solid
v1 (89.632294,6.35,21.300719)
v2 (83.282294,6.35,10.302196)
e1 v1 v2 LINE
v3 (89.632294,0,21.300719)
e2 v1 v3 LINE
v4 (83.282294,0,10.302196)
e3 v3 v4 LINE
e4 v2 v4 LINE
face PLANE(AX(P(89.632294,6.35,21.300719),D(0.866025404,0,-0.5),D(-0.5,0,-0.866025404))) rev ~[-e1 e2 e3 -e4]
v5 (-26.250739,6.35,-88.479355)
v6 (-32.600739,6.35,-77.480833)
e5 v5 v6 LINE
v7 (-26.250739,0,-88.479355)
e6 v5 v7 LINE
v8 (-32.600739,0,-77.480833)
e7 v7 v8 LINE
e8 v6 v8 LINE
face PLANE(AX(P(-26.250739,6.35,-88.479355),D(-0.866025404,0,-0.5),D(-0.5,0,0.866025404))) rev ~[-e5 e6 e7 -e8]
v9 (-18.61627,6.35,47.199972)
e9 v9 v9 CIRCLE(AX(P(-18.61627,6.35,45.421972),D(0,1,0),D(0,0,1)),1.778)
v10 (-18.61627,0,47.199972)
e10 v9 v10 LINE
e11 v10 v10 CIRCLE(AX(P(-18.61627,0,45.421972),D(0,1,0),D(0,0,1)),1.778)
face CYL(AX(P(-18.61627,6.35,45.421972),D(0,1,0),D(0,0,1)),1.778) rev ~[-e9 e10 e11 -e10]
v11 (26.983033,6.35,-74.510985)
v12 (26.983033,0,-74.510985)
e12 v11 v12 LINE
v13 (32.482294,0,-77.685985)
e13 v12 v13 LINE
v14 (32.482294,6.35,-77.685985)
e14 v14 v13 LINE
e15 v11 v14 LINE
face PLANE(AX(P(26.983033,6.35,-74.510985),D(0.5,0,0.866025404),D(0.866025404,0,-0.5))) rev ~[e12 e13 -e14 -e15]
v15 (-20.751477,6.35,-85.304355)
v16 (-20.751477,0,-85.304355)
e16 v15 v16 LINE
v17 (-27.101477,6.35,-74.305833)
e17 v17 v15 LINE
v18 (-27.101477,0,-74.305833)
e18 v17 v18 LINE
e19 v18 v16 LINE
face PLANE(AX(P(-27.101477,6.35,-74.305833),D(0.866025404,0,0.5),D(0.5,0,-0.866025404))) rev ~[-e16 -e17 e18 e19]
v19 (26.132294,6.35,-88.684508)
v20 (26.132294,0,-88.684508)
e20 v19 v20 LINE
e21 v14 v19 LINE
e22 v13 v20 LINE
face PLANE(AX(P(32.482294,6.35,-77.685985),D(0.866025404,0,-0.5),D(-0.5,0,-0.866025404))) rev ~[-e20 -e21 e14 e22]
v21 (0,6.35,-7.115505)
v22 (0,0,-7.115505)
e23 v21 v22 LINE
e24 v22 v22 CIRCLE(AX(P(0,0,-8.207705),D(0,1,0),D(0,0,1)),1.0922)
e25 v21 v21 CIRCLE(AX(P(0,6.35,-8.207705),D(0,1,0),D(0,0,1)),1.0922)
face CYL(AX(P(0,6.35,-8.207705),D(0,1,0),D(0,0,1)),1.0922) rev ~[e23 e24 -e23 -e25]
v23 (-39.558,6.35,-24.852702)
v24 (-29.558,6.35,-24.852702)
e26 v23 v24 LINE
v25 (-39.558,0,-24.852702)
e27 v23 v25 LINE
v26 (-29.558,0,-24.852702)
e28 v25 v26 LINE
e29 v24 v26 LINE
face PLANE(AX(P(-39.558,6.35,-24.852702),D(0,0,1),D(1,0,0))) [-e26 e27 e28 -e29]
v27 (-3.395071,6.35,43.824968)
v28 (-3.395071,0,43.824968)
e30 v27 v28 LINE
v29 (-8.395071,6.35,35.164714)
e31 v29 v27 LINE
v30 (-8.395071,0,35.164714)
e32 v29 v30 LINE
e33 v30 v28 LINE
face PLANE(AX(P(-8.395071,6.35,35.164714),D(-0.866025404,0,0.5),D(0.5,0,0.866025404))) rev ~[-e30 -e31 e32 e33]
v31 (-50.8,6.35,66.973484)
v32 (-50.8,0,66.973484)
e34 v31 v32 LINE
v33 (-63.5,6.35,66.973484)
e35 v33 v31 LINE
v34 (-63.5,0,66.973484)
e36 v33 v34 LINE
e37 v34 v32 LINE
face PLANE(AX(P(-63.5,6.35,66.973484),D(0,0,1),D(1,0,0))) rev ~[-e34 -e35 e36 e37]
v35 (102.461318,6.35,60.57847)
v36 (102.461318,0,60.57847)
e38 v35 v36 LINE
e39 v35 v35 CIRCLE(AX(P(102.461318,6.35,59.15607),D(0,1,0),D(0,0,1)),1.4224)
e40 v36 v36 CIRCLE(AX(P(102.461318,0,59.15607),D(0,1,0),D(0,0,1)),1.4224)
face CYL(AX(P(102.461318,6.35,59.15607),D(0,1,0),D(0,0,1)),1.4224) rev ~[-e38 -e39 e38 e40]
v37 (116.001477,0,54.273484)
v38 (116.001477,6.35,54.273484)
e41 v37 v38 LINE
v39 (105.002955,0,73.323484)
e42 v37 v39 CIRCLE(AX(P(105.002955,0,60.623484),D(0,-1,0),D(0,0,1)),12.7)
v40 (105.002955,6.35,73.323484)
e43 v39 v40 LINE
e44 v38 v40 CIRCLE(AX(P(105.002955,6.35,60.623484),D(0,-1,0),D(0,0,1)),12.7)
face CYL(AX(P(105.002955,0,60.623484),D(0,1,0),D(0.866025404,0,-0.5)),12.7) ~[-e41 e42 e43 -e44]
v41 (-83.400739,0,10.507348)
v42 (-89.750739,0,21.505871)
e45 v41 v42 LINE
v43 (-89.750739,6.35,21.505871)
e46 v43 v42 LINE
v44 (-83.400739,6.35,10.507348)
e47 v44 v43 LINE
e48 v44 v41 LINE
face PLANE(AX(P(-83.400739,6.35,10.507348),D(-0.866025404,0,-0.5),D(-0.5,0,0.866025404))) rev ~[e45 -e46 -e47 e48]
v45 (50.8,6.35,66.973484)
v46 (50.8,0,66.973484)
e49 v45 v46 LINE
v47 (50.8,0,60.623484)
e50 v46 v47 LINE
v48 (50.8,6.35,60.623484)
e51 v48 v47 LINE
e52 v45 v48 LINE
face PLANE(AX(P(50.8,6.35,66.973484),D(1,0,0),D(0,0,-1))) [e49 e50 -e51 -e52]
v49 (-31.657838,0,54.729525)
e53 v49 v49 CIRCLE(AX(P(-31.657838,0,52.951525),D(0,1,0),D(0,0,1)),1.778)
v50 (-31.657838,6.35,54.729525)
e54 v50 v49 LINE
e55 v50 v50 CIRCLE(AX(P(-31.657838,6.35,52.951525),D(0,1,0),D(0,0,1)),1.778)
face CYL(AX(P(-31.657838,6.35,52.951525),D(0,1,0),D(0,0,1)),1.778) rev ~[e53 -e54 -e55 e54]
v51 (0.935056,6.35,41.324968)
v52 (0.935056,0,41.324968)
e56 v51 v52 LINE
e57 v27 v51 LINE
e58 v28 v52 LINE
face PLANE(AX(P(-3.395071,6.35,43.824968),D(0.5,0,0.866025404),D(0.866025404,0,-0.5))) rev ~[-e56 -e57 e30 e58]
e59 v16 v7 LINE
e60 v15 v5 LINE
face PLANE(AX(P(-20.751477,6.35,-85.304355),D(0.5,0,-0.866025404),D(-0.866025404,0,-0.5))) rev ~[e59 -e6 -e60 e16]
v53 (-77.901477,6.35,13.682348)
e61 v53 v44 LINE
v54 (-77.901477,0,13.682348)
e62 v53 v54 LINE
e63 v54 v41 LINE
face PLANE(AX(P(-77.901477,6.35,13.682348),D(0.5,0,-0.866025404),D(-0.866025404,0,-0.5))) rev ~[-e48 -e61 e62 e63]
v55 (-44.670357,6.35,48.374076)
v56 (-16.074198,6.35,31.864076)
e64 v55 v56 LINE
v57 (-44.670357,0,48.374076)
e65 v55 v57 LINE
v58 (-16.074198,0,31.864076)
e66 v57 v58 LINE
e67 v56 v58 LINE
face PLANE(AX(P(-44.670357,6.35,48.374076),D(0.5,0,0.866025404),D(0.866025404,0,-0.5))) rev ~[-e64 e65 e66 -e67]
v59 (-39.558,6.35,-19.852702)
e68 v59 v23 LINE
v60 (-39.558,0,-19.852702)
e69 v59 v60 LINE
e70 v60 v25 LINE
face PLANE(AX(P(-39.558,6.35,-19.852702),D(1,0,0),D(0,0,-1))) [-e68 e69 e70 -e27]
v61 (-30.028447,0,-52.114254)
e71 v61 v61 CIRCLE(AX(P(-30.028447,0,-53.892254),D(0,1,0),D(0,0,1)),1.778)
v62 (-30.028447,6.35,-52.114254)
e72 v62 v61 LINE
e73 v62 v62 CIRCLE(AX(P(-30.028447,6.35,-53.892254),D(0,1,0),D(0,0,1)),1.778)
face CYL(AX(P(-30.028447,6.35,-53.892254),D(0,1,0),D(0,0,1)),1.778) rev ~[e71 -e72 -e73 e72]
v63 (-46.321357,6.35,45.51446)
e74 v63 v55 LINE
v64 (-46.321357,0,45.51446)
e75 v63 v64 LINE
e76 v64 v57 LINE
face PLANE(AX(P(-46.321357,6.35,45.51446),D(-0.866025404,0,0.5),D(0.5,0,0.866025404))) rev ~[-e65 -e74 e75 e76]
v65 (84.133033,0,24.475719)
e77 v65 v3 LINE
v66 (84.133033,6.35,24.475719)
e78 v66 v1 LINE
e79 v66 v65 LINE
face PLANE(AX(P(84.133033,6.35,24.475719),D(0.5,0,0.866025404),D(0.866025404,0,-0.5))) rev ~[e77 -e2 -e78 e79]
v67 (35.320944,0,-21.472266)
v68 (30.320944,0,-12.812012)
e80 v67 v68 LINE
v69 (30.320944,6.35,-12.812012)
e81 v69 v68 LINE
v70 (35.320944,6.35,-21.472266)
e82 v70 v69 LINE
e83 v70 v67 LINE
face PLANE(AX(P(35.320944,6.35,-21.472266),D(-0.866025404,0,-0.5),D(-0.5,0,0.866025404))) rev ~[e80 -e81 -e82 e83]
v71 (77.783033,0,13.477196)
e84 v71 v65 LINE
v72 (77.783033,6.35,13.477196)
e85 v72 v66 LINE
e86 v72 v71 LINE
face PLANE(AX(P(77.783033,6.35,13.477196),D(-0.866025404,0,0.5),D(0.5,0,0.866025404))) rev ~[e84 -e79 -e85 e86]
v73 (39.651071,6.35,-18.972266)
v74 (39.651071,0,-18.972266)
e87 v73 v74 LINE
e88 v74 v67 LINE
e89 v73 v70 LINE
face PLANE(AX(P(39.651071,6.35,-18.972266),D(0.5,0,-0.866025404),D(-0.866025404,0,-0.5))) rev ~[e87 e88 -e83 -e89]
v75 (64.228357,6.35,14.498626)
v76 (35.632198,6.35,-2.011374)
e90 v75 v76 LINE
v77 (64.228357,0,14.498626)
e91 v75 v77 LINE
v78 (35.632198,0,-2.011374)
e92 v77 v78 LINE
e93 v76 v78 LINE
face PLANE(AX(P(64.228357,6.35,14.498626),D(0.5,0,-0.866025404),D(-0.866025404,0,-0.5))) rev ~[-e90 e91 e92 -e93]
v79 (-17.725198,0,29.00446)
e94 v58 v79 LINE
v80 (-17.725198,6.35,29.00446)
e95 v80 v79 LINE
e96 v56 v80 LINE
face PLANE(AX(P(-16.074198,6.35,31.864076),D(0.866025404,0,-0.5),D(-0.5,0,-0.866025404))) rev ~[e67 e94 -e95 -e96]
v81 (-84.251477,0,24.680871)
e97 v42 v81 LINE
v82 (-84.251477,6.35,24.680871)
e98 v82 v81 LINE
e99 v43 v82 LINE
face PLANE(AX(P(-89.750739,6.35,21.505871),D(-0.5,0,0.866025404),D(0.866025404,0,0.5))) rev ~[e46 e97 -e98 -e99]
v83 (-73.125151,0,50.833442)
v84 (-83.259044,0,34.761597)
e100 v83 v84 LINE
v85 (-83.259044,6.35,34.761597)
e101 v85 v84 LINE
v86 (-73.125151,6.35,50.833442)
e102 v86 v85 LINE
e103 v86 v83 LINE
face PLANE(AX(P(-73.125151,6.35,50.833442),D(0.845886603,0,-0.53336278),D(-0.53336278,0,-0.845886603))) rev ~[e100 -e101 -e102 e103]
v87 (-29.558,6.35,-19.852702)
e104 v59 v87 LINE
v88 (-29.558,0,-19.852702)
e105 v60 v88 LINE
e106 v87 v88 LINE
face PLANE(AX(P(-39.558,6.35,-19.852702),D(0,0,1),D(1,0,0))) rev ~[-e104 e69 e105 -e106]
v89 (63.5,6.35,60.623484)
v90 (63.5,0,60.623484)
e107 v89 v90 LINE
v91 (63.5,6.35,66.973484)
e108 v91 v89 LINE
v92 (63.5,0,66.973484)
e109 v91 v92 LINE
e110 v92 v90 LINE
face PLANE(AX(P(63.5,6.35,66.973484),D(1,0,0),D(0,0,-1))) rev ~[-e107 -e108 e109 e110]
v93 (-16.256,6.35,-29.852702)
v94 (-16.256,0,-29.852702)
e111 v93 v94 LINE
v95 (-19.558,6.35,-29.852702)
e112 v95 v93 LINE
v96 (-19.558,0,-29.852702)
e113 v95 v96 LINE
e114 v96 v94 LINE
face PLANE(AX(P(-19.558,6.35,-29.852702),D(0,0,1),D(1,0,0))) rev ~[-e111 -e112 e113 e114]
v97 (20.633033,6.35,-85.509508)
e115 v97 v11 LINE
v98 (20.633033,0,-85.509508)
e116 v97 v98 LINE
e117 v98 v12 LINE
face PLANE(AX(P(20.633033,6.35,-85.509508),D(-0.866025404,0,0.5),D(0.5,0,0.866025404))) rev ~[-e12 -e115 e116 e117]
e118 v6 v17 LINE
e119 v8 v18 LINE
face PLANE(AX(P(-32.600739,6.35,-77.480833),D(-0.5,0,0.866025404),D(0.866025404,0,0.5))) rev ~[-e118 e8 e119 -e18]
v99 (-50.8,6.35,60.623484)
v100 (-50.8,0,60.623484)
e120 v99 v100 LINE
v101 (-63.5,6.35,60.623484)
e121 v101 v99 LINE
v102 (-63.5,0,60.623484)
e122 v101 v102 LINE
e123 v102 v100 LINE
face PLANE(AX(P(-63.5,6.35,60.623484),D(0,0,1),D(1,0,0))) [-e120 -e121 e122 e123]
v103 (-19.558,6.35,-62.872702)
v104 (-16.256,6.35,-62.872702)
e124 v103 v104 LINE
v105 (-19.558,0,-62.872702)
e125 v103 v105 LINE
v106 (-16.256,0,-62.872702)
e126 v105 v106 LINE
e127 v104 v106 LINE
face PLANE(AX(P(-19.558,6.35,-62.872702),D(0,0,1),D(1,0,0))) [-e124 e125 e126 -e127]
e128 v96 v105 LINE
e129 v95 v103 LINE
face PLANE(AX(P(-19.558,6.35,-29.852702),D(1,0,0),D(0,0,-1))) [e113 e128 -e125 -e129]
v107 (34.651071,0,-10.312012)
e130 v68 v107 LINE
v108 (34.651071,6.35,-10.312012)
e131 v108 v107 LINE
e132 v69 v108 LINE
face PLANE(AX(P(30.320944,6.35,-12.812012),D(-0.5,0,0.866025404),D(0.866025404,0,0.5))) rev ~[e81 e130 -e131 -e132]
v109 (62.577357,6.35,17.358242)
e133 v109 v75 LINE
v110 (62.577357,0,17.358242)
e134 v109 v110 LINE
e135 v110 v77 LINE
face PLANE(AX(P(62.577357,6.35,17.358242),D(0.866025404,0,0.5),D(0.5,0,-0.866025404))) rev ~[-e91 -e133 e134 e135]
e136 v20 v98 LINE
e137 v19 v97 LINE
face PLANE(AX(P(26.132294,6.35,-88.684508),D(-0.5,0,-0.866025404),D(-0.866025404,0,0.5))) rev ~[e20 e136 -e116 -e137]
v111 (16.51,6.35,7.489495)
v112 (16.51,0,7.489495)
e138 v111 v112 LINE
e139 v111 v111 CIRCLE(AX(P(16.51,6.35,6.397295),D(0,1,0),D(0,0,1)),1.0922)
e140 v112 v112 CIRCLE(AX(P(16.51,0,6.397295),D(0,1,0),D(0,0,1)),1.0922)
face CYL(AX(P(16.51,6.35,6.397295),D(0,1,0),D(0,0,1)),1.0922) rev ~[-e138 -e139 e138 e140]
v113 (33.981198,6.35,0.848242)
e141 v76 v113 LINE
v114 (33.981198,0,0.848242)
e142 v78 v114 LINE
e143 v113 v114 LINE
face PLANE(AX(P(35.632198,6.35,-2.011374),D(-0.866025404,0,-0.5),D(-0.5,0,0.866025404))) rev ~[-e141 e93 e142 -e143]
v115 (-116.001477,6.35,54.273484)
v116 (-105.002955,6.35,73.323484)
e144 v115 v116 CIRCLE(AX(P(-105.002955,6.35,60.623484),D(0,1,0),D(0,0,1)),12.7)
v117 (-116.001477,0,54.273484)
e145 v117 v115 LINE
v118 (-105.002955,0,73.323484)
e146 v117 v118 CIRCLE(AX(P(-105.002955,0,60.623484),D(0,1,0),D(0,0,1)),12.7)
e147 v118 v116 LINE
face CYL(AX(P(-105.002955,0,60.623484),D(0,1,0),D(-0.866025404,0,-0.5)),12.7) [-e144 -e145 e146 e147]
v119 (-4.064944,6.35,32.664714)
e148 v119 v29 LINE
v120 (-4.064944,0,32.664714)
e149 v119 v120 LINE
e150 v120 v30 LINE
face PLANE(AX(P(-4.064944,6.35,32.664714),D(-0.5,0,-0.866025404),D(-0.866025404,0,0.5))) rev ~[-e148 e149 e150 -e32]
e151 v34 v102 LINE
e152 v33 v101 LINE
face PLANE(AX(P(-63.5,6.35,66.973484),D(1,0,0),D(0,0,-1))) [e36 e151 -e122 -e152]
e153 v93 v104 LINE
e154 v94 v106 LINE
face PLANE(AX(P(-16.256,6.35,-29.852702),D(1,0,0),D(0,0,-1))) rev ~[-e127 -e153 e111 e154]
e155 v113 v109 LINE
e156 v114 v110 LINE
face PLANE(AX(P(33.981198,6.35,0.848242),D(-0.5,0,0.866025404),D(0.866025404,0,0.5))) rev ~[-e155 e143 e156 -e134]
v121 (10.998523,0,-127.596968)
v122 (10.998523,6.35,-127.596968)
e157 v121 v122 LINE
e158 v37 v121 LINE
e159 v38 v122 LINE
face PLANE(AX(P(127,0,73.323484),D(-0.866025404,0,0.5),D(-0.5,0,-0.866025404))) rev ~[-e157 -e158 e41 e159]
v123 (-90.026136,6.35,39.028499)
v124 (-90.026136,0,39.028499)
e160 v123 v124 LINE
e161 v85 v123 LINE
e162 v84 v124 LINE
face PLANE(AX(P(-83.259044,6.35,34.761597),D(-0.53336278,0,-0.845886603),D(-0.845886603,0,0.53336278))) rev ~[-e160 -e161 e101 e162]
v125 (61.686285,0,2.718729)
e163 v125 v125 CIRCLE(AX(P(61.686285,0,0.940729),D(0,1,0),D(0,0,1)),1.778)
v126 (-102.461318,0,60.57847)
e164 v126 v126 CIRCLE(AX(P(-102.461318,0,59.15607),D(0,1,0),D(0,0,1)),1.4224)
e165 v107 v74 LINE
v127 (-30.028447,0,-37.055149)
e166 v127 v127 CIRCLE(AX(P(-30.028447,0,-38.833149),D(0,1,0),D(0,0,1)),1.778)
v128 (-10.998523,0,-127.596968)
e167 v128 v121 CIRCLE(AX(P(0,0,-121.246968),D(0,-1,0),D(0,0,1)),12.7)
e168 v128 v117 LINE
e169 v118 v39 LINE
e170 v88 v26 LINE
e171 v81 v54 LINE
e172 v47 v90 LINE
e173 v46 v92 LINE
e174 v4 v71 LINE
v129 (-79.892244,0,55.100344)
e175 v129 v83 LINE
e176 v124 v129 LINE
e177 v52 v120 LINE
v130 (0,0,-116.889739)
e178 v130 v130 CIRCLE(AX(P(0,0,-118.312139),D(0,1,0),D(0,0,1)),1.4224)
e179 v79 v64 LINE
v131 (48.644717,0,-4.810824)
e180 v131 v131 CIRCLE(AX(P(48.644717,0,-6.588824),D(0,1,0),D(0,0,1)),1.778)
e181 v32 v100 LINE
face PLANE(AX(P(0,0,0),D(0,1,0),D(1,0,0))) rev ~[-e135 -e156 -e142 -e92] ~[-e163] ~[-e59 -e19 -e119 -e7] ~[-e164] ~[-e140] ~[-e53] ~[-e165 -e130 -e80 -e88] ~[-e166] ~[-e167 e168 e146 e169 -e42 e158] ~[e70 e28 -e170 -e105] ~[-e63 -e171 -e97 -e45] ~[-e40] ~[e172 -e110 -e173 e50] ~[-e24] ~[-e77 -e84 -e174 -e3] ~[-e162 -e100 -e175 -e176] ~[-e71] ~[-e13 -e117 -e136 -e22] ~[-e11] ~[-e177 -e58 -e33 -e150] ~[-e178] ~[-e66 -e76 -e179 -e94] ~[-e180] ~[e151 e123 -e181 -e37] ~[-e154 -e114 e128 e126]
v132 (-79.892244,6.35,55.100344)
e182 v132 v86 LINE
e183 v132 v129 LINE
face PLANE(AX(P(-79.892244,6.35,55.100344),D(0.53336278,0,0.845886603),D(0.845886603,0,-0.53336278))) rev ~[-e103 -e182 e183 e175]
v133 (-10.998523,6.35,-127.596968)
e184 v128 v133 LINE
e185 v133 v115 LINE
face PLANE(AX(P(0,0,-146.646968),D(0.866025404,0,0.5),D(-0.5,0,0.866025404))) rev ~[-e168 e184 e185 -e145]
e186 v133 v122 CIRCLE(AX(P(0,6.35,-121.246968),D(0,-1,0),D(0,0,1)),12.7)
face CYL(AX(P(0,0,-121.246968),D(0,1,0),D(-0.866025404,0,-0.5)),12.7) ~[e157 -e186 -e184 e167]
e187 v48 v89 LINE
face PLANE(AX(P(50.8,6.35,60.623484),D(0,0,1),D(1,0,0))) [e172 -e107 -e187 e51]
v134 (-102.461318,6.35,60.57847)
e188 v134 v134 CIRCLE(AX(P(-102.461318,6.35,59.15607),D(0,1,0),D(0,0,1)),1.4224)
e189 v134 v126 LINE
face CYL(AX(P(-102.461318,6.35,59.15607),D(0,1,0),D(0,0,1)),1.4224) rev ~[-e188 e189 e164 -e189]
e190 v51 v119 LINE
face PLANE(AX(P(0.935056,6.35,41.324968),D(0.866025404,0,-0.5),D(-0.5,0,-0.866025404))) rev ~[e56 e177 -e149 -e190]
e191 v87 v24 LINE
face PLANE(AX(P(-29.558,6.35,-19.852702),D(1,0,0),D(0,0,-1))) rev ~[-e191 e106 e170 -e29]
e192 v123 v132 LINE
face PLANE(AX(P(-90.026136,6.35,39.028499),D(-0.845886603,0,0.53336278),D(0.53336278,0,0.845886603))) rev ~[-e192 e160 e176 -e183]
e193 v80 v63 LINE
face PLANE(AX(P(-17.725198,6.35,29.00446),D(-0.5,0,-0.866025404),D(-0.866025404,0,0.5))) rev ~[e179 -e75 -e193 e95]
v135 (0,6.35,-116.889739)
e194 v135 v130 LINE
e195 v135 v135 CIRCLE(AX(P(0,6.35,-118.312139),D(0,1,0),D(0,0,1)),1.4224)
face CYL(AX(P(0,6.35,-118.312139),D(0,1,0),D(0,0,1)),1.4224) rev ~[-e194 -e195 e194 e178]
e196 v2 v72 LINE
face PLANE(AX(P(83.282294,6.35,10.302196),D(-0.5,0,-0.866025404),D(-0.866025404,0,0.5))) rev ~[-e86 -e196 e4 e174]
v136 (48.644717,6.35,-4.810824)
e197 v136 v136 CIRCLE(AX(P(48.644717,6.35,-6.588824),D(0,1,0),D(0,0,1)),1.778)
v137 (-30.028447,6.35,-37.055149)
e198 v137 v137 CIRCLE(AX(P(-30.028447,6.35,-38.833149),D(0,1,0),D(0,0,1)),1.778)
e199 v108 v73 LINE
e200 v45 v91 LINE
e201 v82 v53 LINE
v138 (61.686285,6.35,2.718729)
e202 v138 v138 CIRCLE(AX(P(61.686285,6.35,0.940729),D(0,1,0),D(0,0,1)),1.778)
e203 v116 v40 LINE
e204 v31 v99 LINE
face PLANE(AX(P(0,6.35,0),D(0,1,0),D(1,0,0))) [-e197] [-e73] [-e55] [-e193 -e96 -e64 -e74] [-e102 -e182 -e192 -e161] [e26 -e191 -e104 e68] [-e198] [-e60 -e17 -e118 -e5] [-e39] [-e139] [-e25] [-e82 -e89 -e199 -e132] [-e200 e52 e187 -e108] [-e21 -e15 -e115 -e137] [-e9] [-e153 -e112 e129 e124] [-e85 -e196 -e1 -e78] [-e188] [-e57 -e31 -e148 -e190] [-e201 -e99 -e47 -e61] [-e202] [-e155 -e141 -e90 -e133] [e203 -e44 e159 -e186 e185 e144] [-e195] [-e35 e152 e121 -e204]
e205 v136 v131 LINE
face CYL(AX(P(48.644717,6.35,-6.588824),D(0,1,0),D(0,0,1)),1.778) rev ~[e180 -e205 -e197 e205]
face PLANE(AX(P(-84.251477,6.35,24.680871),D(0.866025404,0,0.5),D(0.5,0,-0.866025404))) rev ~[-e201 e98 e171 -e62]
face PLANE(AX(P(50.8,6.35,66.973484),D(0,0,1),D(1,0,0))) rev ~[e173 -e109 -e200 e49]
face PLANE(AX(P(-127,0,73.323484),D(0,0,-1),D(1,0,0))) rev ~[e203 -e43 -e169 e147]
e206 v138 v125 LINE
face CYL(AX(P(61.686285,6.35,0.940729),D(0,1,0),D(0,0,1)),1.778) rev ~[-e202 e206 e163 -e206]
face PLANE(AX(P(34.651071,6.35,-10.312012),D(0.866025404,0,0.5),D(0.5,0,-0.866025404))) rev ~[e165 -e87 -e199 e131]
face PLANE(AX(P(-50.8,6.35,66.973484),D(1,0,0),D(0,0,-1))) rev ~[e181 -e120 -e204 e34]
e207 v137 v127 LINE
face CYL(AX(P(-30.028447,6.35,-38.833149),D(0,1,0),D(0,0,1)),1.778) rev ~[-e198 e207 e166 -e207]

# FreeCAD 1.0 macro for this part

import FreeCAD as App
import Part
import Sketcher
from FreeCAD import Vector
Q = App.Units.Quantity


def edges_at(feature, points):
    """Names of the edges that pass closest to the given points."""
    edges = feature.Shape.Edges
    near = lambda p: min(range(len(edges)), key=lambda i: edges[i].distToShape(Part.Vertex(*p))[0])
    return sorted({f"Edge{near(p) + 1}" for p in points})

doc = App.newDocument("Part")
body = doc.addObject("PartDesign::Body", "Body")

# Sketch on XZ plane
sketch1 = body.newObject("Sketcher::SketchObject", "Sketch")
sketch1.AttachmentSupport = (doc.getObject("XZ_Plane"), [""])
sketch1.MapMode = "FlatFace"
sketch1.addGeometry(Part.LineSegment(Vector(0, -146.646968, 0), Vector(-127, 73.323484, 0)), False)
sketch1.addGeometry(Part.LineSegment(Vector(-127, 73.323484, 0), Vector(127, 73.323484, 0)), False)
sketch1.addGeometry(Part.LineSegment(Vector(127, 73.323484, 0), Vector(0, -146.646968, 0)), False)
sketch1.addConstraint(Sketcher.Constraint("Coincident", 0, 2, 1, 1))
sketch1.addConstraint(Sketcher.Constraint("Coincident", 1, 2, 2, 1))
sketch1.addConstraint(Sketcher.Constraint("Coincident", 2, 2, 0, 1))
sketch1.addConstraint(Sketcher.Constraint("Horizontal", 1))
sketch1.addConstraint(Sketcher.Constraint("PointOnObject", 2, 2, -2))
sketch1.addConstraint(Sketcher.Constraint("Equal", 0, 2))
sketch1.addConstraint(Sketcher.Constraint("DistanceX", 1, 1, 1, 2, Q("10 in")))
sketch1.addConstraint(Sketcher.Constraint("Distance", 0, Q("10 in")))
sketch1.addConstraint(Sketcher.Constraint("DistanceY", 2, 2, -1, 1, Q("146.646968 mm")))
pad1 = body.newObject("PartDesign::Pad", "Pad")
pad1.Profile = sketch1
pad1.Length = Q("0.25 in")
pad1.Reversed = True

# Sketch on XZ plane
sketch2 = body.newObject("Sketcher::SketchObject", "Sketch001")
sketch2.AttachmentSupport = (doc.getObject("XZ_Plane"), [""])
sketch2.MapMode = "FlatFace"
sketch2.AttachmentOffset = App.Placement(Vector(0, 0, -0.25 * 25.4), App.Rotation())
sketch2.addGeometry(Part.LineSegment(Vector(-19.558, -62.872702, 0), Vector(-19.558, -29.852702, 0)), False)
sketch2.addGeometry(Part.LineSegment(Vector(-19.558, -29.852702, 0), Vector(-16.256, -29.852702, 0)), False)
sketch2.addGeometry(Part.LineSegment(Vector(-16.256, -29.852702, 0), Vector(-16.256, -62.872702, 0)), False)
sketch2.addGeometry(Part.LineSegment(Vector(-16.256, -62.872702, 0), Vector(-19.558, -62.872702, 0)), False)
sketch2.addGeometry(Part.LineSegment(Vector(64.228357, 14.498626, 0), Vector(35.632198, -2.011374, 0)), False)
sketch2.addGeometry(Part.LineSegment(Vector(35.632198, -2.011374, 0), Vector(33.981198, 0.848242, 0)), False)
sketch2.addGeometry(Part.LineSegment(Vector(33.981198, 0.848242, 0), Vector(62.577357, 17.358242, 0)), False)
sketch2.addGeometry(Part.LineSegment(Vector(62.577357, 17.358242, 0), Vector(64.228357, 14.498626, 0)), False)
sketch2.addGeometry(Part.Circle(Vector(48.644717, -6.588824, 0), Vector(0, 0, 1), 1.778), False)
sketch2.addGeometry(Part.Circle(Vector(61.686285, 0.940729, 0), Vector(0, 0, 1), 1.778), False)
sketch2.addGeometry(Part.Circle(Vector(-30.028447, -38.833149, 0), Vector(0, 0, 1), 1.778), False)
sketch2.addGeometry(Part.Circle(Vector(-30.028447, -53.892254, 0), Vector(0, 0, 1), 1.778), False)
sketch2.addGeometry(Part.LineSegment(Vector(-16.074198, 31.864076, 0), Vector(-17.725198, 29.00446, 0)), False)
sketch2.addGeometry(Part.LineSegment(Vector(-17.725198, 29.00446, 0), Vector(-46.321357, 45.51446, 0)), False)
sketch2.addGeometry(Part.LineSegment(Vector(-46.321357, 45.51446, 0), Vector(-44.670357, 48.374076, 0)), False)
sketch2.addGeometry(Part.LineSegment(Vector(-44.670357, 48.374076, 0), Vector(-16.074198, 31.864076, 0)), False)
sketch2.addGeometry(Part.Circle(Vector(-18.61627, 45.421972, 0), Vector(0, 0, 1), 1.778), False)
sketch2.addGeometry(Part.Circle(Vector(-31.657838, 52.951525, 0), Vector(0, 0, 1), 1.778), False)
sketch2.addConstraint(Sketcher.Constraint("Coincident", 0, 2, 1, 1))
sketch2.addConstraint(Sketcher.Constraint("Coincident", 1, 2, 2, 1))
sketch2.addConstraint(Sketcher.Constraint("Coincident", 2, 2, 3, 1))
sketch2.addConstraint(Sketcher.Constraint("Coincident", 3, 2, 0, 1))
sketch2.addConstraint(Sketcher.Constraint("Coincident", 4, 2, 5, 1))
sketch2.addConstraint(Sketcher.Constraint("Coincident", 5, 2, 6, 1))
sketch2.addConstraint(Sketcher.Constraint("Coincident", 6, 2, 7, 1))
sketch2.addConstraint(Sketcher.Constraint("Coincident", 7, 2, 4, 1))
sketch2.addConstraint(Sketcher.Constraint("Coincident", 12, 2, 13, 1))
sketch2.addConstraint(Sketcher.Constraint("Coincident", 13, 2, 14, 1))
sketch2.addConstraint(Sketcher.Constraint("Coincident", 14, 2, 15, 1))
sketch2.addConstraint(Sketcher.Constraint("Coincident", 15, 2, 12, 1))
sketch2.addConstraint(Sketcher.Constraint("Vertical", 0))
sketch2.addConstraint(Sketcher.Constraint("Horizontal", 1))
sketch2.addConstraint(Sketcher.Constraint("Vertical", 2))
sketch2.addConstraint(Sketcher.Constraint("Horizontal", 3))
sketch2.addConstraint(Sketcher.Constraint("Equal", 8, 9))
sketch2.addConstraint(Sketcher.Constraint("Equal", 9, 10))
sketch2.addConstraint(Sketcher.Constraint("Equal", 10, 11))
sketch2.addConstraint(Sketcher.Constraint("Equal", 11, 16))
sketch2.addConstraint(Sketcher.Constraint("Equal", 16, 17))
sketch2.addConstraint(Sketcher.Constraint("Perpendicular", 4, 5))
sketch2.addConstraint(Sketcher.Constraint("Perpendicular", 5, 6))
sketch2.addConstraint(Sketcher.Constraint("Perpendicular", 6, 7))
sketch2.addConstraint(Sketcher.Constraint("Perpendicular", 12, 13))
sketch2.addConstraint(Sketcher.Constraint("Perpendicular", 13, 14))
sketch2.addConstraint(Sketcher.Constraint("Perpendicular", 14, 15))
sketch2.addConstraint(Sketcher.Constraint("Vertical", 10, 3, 11, 3))
sketch2.addConstraint(Sketcher.Constraint("Equal", 7, 12))
sketch2.addConstraint(Sketcher.Constraint("Equal", 6, 13))
sketch2.addConstraint(Sketcher.Constraint("Diameter", 8, Q("0.14 in")))
sketch2.addConstraint(Sketcher.Constraint("DistanceY", 0, 1, 0, 2, Q("1.3 in")))
sketch2.addConstraint(Sketcher.Constraint("Angle", 4, Q("-150 deg")))
sketch2.addConstraint(Sketcher.Constraint("Angle", 12, Q("-120 deg")))
sketch2.addConstraint(Sketcher.Constraint("Distance", 4, Q("1.3 in")))
sketch2.addConstraint(Sketcher.Constraint("DistanceX", 1, 1, 1, 2, Q("0.13 in")))
sketch2.addConstraint(Sketcher.Constraint("Distance", 5, Q("0.13 in")))
sketch2.addConstraint(Sketcher.Constraint("DistanceX", 0, 2, -1, 1, Q("0.77 in")))
sketch2.addConstraint(Sketcher.Constraint("DistanceY", 0, 2, -1, 1, Q("29.852702 mm")))
sketch2.addConstraint(Sketcher.Constraint("DistanceY", -1, 1, 9, 3, Q("0.940729 mm")))
sketch2.addConstraint(Sketcher.Constraint("DistanceY", 10, 3, -1, 1, Q("38.833149 mm")))
sketch2.addConstraint(Sketcher.Constraint("DistanceX", 16, 3, -1, 1, Q("18.61627 mm")))
sketch2.addConstraint(Sketcher.Constraint("DistanceY", -1, 1, 5, 2, Q("0.848242 mm")))
sketch2.addConstraint(Sketcher.Constraint("DistanceY", -1, 1, 12, 2, Q("29.00446 mm")))
sketch2.addConstraint(Sketcher.Constraint("DistanceX", 8, 3, 9, 3, Q("13.041568 mm")))
sketch2.addConstraint(Sketcher.Constraint("DistanceY", 11, 3, 8, 3, Q("47.303431 mm")))
sketch2.addConstraint(Sketcher.Constraint("DistanceY", 10, 3, 16, 3, Q("84.255121 mm")))
sketch2.addConstraint(Sketcher.Constraint("DistanceX", 17, 3, 16, 3, Q("13.041568 mm")))
sketch2.addConstraint(Sketcher.Constraint("DistanceX", 17, 3, 10, 3, Q("1.629391 mm")))
sketch2.addConstraint(Sketcher.Constraint("DistanceY", 8, 3, 17, 3, Q("59.540349 mm")))
sketch2.addConstraint(Sketcher.Constraint("DistanceX", 4, 2, 8, 3, Q("13.012519 mm")))
sketch2.addConstraint(Sketcher.Constraint("DistanceY", 8, 3, 4, 2, Q("4.57745 mm")))
sketch2.addConstraint(Sketcher.Constraint("DistanceX", 16, 3, 12, 2, Q("0.891072 mm")))
sketch2.addConstraint(Sketcher.Constraint("DistanceX", -1, 1, 8, 3, Q("48.644717 mm")))
pocket1 = body.newObject("PartDesign::Pocket", "Pocket")
pocket1.Profile = sketch2
pocket1.Type = "ThroughAll"
pocket1.Reversed = True

# Sketch on XZ plane
sketch3 = body.newObject("Sketcher::SketchObject", "Sketch002")
sketch3.AttachmentSupport = (doc.getObject("XZ_Plane"), [""])
sketch3.MapMode = "FlatFace"
sketch3.AttachmentOffset = App.Placement(Vector(0, 0, -0.25 * 25.4), App.Rotation())
sketch3.addGeometry(Part.Circle(Vector(0, -118.312139, 0), Vector(0, 0, 1), 1.4224), False)
sketch3.addGeometry(Part.Circle(Vector(-102.461318, 59.15607, 0), Vector(0, 0, 1), 1.4224), False)
sketch3.addGeometry(Part.Circle(Vector(102.461318, 59.15607, 0), Vector(0, 0, 1), 1.4224), False)
sketch3.addGeometry(Part.LineSegment(Vector(-39.558, -24.852702, 0), Vector(-39.558, -19.852702, 0)), False)
sketch3.addGeometry(Part.LineSegment(Vector(-39.558, -19.852702, 0), Vector(-29.558, -19.852702, 0)), False)
sketch3.addGeometry(Part.LineSegment(Vector(-29.558, -19.852702, 0), Vector(-29.558, -24.852702, 0)), False)
sketch3.addGeometry(Part.LineSegment(Vector(-29.558, -24.852702, 0), Vector(-39.558, -24.852702, 0)), False)
sketch3.addGeometry(Part.LineSegment(Vector(0.935056, 41.324968, 0), Vector(-4.064944, 32.664714, 0)), False)
sketch3.addGeometry(Part.LineSegment(Vector(-4.064944, 32.664714, 0), Vector(-8.395071, 35.164714, 0)), False)
sketch3.addGeometry(Part.LineSegment(Vector(-8.395071, 35.164714, 0), Vector(-3.395071, 43.824968, 0)), False)
sketch3.addGeometry(Part.LineSegment(Vector(-3.395071, 43.824968, 0), Vector(0.935056, 41.324968, 0)), False)
sketch3.addGeometry(Part.LineSegment(Vector(35.320944, -21.472266, 0), Vector(30.320944, -12.812012, 0)), False)
sketch3.addGeometry(Part.LineSegment(Vector(30.320944, -12.812012, 0), Vector(34.651071, -10.312012, 0)), False)
sketch3.addGeometry(Part.LineSegment(Vector(34.651071, -10.312012, 0), Vector(39.651071, -18.972266, 0)), False)
sketch3.addGeometry(Part.LineSegment(Vector(39.651071, -18.972266, 0), Vector(35.320944, -21.472266, 0)), False)
sketch3.addConstraint(Sketcher.Constraint("Coincident", 3, 2, 4, 1))
sketch3.addConstraint(Sketcher.Constraint("Coincident", 4, 2, 5, 1))
sketch3.addConstraint(Sketcher.Constraint("Coincident", 5, 2, 6, 1))
sketch3.addConstraint(Sketcher.Constraint("Coincident", 6, 2, 3, 1))
sketch3.addConstraint(Sketcher.Constraint("Coincident", 7, 2, 8, 1))
sketch3.addConstraint(Sketcher.Constraint("Coincident", 8, 2, 9, 1))
sketch3.addConstraint(Sketcher.Constraint("Coincident", 9, 2, 10, 1))
sketch3.addConstraint(Sketcher.Constraint("Coincident", 10, 2, 7, 1))
sketch3.addConstraint(Sketcher.Constraint("Coincident", 11, 2, 12, 1))
sketch3.addConstraint(Sketcher.Constraint("Coincident", 12, 2, 13, 1))
sketch3.addConstraint(Sketcher.Constraint("Coincident", 13, 2, 14, 1))
sketch3.addConstraint(Sketcher.Constraint("Coincident", 14, 2, 11, 1))
sketch3.addConstraint(Sketcher.Constraint("Vertical", 3))
sketch3.addConstraint(Sketcher.Constraint("Horizontal", 4))
sketch3.addConstraint(Sketcher.Constraint("Vertical", 5))
sketch3.addConstraint(Sketcher.Constraint("Horizontal", 6))
sketch3.addConstraint(Sketcher.Constraint("Equal", 0, 1))
sketch3.addConstraint(Sketcher.Constraint("Equal", 1, 2))
sketch3.addConstraint(Sketcher.Constraint("Symmetric", 1, 3, 2, 3, -2))
sketch3.addConstraint(Sketcher.Constraint("PointOnObject", 0, 3, -2))
sketch3.addConstraint(Sketcher.Constraint("Perpendicular", 7, 8))
sketch3.addConstraint(Sketcher.Constraint("Perpendicular", 8, 9))
sketch3.addConstraint(Sketcher.Constraint("Perpendicular", 9, 10))
sketch3.addConstraint(Sketcher.Constraint("Perpendicular", 11, 12))
sketch3.addConstraint(Sketcher.Constraint("Perpendicular", 12, 13))
sketch3.addConstraint(Sketcher.Constraint("Perpendicular", 13, 14))
sketch3.addConstraint(Sketcher.Constraint("Equal", 9, 11))
sketch3.addConstraint(Sketcher.Constraint("Equal", 10, 12))
sketch3.addConstraint(Sketcher.Constraint("Diameter", 0, Q("0.112 in")))
sketch3.addConstraint(Sketcher.Constraint("Angle", 7, Q("-120 deg")))
sketch3.addConstraint(Sketcher.Constraint("Angle", 11, Q("120 deg")))
sketch3.addConstraint(Sketcher.Constraint("DistanceX", 4, 1, 4, 2, Q("10 mm")))
sketch3.addConstraint(Sketcher.Constraint("DistanceY", 3, 1, 3, 2, Q("5 mm")))
sketch3.addConstraint(Sketcher.Constraint("Distance", 7, Q("10 mm")))
sketch3.addConstraint(Sketcher.Constraint("Distance", 8, Q("5 mm")))
sketch3.addConstraint(Sketcher.Constraint("DistanceX", 3, 2, -1, 1, Q("39.558 mm")))
sketch3.addConstraint(Sketcher.Constraint("DistanceY", 3, 2, -1, 1, Q("19.852702 mm")))
sketch3.addConstraint(Sketcher.Constraint("DistanceY", 0, 3, -1, 1, Q("118.312139 mm")))
sketch3.addConstraint(Sketcher.Constraint("DistanceX", 1, 3, -1, 1, Q("102.461318 mm")))
sketch3.addConstraint(Sketcher.Constraint("DistanceY", -1, 1, 1, 3, Q("59.15607 mm")))
sketch3.addConstraint(Sketcher.Constraint("DistanceX", 8, 2, -1, 1, Q("8.395071 mm")))
sketch3.addConstraint(Sketcher.Constraint("DistanceX", -1, 1, 12, 2, Q("34.651071 mm")))
sketch3.addConstraint(Sketcher.Constraint("DistanceY", 4, 2, 9, 2, Q("63.677669 mm")))
sketch3.addConstraint(Sketcher.Constraint("DistanceY", 4, 2, 11, 2, Q("7.040689 mm")))
pocket2 = body.newObject("PartDesign::Pocket", "Pocket001")
pocket2.Profile = sketch3
pocket2.Type = "ThroughAll"
pocket2.Reversed = True

# Sketch on XZ plane
sketch4 = body.newObject("Sketcher::SketchObject", "Sketch003")
sketch4.AttachmentSupport = (doc.getObject("XZ_Plane"), [""])
sketch4.MapMode = "FlatFace"
sketch4.AttachmentOffset = App.Placement(Vector(0, 0, -0.25 * 25.4), App.Rotation())
sketch4.addGeometry(Part.Circle(Vector(0, -8.207705, 0), Vector(0, 0, 1), 1.0922), False)
sketch4.addGeometry(Part.Circle(Vector(16.51, 6.397295, 0), Vector(0, 0, 1), 1.0922), False)
sketch4.addConstraint(Sketcher.Constraint("Equal", 0, 1))
sketch4.addConstraint(Sketcher.Constraint("PointOnObject", 0, 3, -2))
sketch4.addConstraint(Sketcher.Constraint("Diameter", 0, Q("0.086 in")))
sketch4.addConstraint(Sketcher.Constraint("DistanceX", -1, 1, 1, 3, Q("0.65 in")))
sketch4.addConstraint(Sketcher.Constraint("DistanceY", 0, 3, 1, 3, Q("0.575 in")))
sketch4.addConstraint(Sketcher.Constraint("DistanceY", 0, 3, -1, 1, Q("8.207705 mm")))
pocket3 = body.newObject("PartDesign::Pocket", "Pocket002")
pocket3.Profile = sketch4
pocket3.Type = "ThroughAll"
pocket3.Reversed = True
doc.recompute()

fillet = body.newObject("PartDesign::Fillet", "Fillet")
fillet.Base = (pocket3, edges_at(pocket3, [(127, 3.175, 73.323), (-127, 3.175, 73.323), (0, 3.175, -146.647)]))
fillet.Radius = Q("0.5 in")

# Sketch on XZ plane
sketch5 = body.newObject("Sketcher::SketchObject", "Sketch004")
sketch5.AttachmentSupport = (doc.getObject("XZ_Plane"), [""])
sketch5.MapMode = "FlatFace"
sketch5.AttachmentOffset = App.Placement(Vector(0, 0, -0.25 * 25.4), App.Rotation())
sketch5.addGeometry(Part.LineSegment(Vector(-63.5, 60.623484, 0), Vector(-63.5, 66.973484, 0)), False)
sketch5.addGeometry(Part.LineSegment(Vector(-63.5, 66.973484, 0), Vector(-50.8, 66.973484, 0)), False)
sketch5.addGeometry(Part.LineSegment(Vector(-50.8, 66.973484, 0), Vector(-50.8, 60.623484, 0)), False)
sketch5.addGeometry(Part.LineSegment(Vector(-50.8, 60.623484, 0), Vector(-63.5, 60.623484, 0)), False)
sketch5.addGeometry(Part.LineSegment(Vector(50.8, 60.623484, 0), Vector(50.8, 66.973484, 0)), False)
sketch5.addGeometry(Part.LineSegment(Vector(50.8, 66.973484, 0), Vector(63.5, 66.973484, 0)), False)
sketch5.addGeometry(Part.LineSegment(Vector(63.5, 66.973484, 0), Vector(63.5, 60.623484, 0)), False)
sketch5.addGeometry(Part.LineSegment(Vector(63.5, 60.623484, 0), Vector(50.8, 60.623484, 0)), False)
sketch5.addGeometry(Part.LineSegment(Vector(89.632294, 21.300719, 0), Vector(83.282294, 10.302196, 0)), False)
sketch5.addGeometry(Part.LineSegment(Vector(83.282294, 10.302196, 0), Vector(77.783033, 13.477196, 0)), False)
sketch5.addGeometry(Part.LineSegment(Vector(77.783033, 13.477196, 0), Vector(84.133033, 24.475719, 0)), False)
sketch5.addGeometry(Part.LineSegment(Vector(84.133033, 24.475719, 0), Vector(89.632294, 21.300719, 0)), False)
sketch5.addGeometry(Part.LineSegment(Vector(26.983033, -74.510985, 0), Vector(32.482294, -77.685985, 0)), False)
sketch5.addGeometry(Part.LineSegment(Vector(32.482294, -77.685985, 0), Vector(26.132294, -88.684508, 0)), False)
sketch5.addGeometry(Part.LineSegment(Vector(26.132294, -88.684508, 0), Vector(20.633033, -85.509508, 0)), False)
sketch5.addGeometry(Part.LineSegment(Vector(20.633033, -85.509508, 0), Vector(26.983033, -74.510985, 0)), False)
sketch5.addGeometry(Part.LineSegment(Vector(-26.250739, -88.479355, 0), Vector(-32.600739, -77.480833, 0)), False)
sketch5.addGeometry(Part.LineSegment(Vector(-32.600739, -77.480833, 0), Vector(-27.101477, -74.305833, 0)), False)
sketch5.addGeometry(Part.LineSegment(Vector(-27.101477, -74.305833, 0), Vector(-20.751477, -85.304355, 0)), False)
sketch5.addGeometry(Part.LineSegment(Vector(-20.751477, -85.304355, 0), Vector(-26.250739, -88.479355, 0)), False)
sketch5.addGeometry(Part.LineSegment(Vector(-77.901477, 13.682348, 0), Vector(-83.400739, 10.507348, 0)), False)
sketch5.addGeometry(Part.LineSegment(Vector(-83.400739, 10.507348, 0), Vector(-89.750739, 21.505871, 0)), False)
sketch5.addGeometry(Part.LineSegment(Vector(-89.750739, 21.505871, 0), Vector(-84.251477, 24.680871, 0)), False)
sketch5.addGeometry(Part.LineSegment(Vector(-84.251477, 24.680871, 0), Vector(-77.901477, 13.682348, 0)), False)
sketch5.addConstraint(Sketcher.Constraint("Coincident", 0, 2, 1, 1))
sketch5.addConstraint(Sketcher.Constraint("Coincident", 1, 2, 2, 1))
sketch5.addConstraint(Sketcher.Constraint("Coincident", 2, 2, 3, 1))
sketch5.addConstraint(Sketcher.Constraint("Coincident", 3, 2, 0, 1))
sketch5.addConstraint(Sketcher.Constraint("Coincident", 4, 2, 5, 1))
sketch5.addConstraint(Sketcher.Constraint("Coincident", 5, 2, 6, 1))
sketch5.addConstraint(Sketcher.Constraint("Coincident", 6, 2, 7, 1))
sketch5.addConstraint(Sketcher.Constraint("Coincident", 7, 2, 4, 1))
sketch5.addConstraint(Sketcher.Constraint("Coincident", 8, 2, 9, 1))
sketch5.addConstraint(Sketcher.Constraint("Coincident", 9, 2, 10, 1))
sketch5.addConstraint(Sketcher.Constraint("Coincident", 10, 2, 11, 1))
sketch5.addConstraint(Sketcher.Constraint("Coincident", 11, 2, 8, 1))
sketch5.addConstraint(Sketcher.Constraint("Coincident", 12, 2, 13, 1))
sketch5.addConstraint(Sketcher.Constraint("Coincident", 13, 2, 14, 1))
sketch5.addConstraint(Sketcher.Constraint("Coincident", 14, 2, 15, 1))
sketch5.addConstraint(Sketcher.Constraint("Coincident", 15, 2, 12, 1))
sketch5.addConstraint(Sketcher.Constraint("Coincident", 16, 2, 17, 1))
sketch5.addConstraint(Sketcher.Constraint("Coincident", 17, 2, 18, 1))
sketch5.addConstraint(Sketcher.Constraint("Coincident", 18, 2, 19, 1))
sketch5.addConstraint(Sketcher.Constraint("Coincident", 19, 2, 16, 1))
sketch5.addConstraint(Sketcher.Constraint("Coincident", 20, 2, 21, 1))
sketch5.addConstraint(Sketcher.Constraint("Coincident", 21, 2, 22, 1))
sketch5.addConstraint(Sketcher.Constraint("Coincident", 22, 2, 23, 1))
sketch5.addConstraint(Sketcher.Constraint("Coincident", 23, 2, 20, 1))
sketch5.addConstraint(Sketcher.Constraint("Vertical", 0))
sketch5.addConstraint(Sketcher.Constraint("Horizontal", 1))
sketch5.addConstraint(Sketcher.Constraint("Vertical", 2))
sketch5.addConstraint(Sketcher.Constraint("Horizontal", 3))
sketch5.addConstraint(Sketcher.Constraint("Vertical", 4))
sketch5.addConstraint(Sketcher.Constraint("Horizontal", 5))
sketch5.addConstraint(Sketcher.Constraint("Vertical", 6))
sketch5.addConstraint(Sketcher.Constraint("Horizontal", 7))
sketch5.addConstraint(Sketcher.Constraint("Symmetric", 1, 2, 4, 2, -2))
sketch5.addConstraint(Sketcher.Constraint("Symmetric", 3, 2, 6, 2, -2))
sketch5.addConstraint(Sketcher.Constraint("Perpendicular", 8, 9))
sketch5.addConstraint(Sketcher.Constraint("Perpendicular", 9, 10))
sketch5.addConstraint(Sketcher.Constraint("Perpendicular", 10, 11))
sketch5.addConstraint(Sketcher.Constraint("Parallel", 11, 12))
sketch5.addConstraint(Sketcher.Constraint("Perpendicular", 12, 13))
sketch5.addConstraint(Sketcher.Constraint("Perpendicular", 13, 14))
sketch5.addConstraint(Sketcher.Constraint("Perpendicular", 14, 15))
sketch5.addConstraint(Sketcher.Constraint("Perpendicular", 16, 17))
sketch5.addConstraint(Sketcher.Constraint("Perpendicular", 17, 18))
sketch5.addConstraint(Sketcher.Constraint("Perpendicular", 18, 19))
sketch5.addConstraint(Sketcher.Constraint("Parallel", 19, 20))
sketch5.addConstraint(Sketcher.Constraint("Perpendicular", 20, 21))
sketch5.addConstraint(Sketcher.Constraint("Perpendicular", 21, 22))
sketch5.addConstraint(Sketcher.Constraint("Perpendicular", 22, 23))
sketch5.addConstraint(Sketcher.Constraint("Equal", 11, 12))
sketch5.addConstraint(Sketcher.Constraint("Equal", 10, 13))
sketch5.addConstraint(Sketcher.Constraint("Equal", 15, 16))
sketch5.addConstraint(Sketcher.Constraint("Equal", 14, 17))
sketch5.addConstraint(Sketcher.Constraint("Equal", 19, 20))
sketch5.addConstraint(Sketcher.Constraint("Equal", 18, 21))
sketch5.addConstraint(Sketcher.Constraint("DistanceX", 1, 1, 1, 2, Q("0.5 in")))
sketch5.addConstraint(Sketcher.Constraint("DistanceX", 1, 2, -1, 1, Q("2 in")))
sketch5.addConstraint(Sketcher.Constraint("Angle", 8, Q("-120 deg")))
sketch5.addConstraint(Sketcher.Constraint("Angle", 16, Q("120 deg")))
sketch5.addConstraint(Sketcher.Constraint("DistanceX", 12, 2, 8, 2, Q("2 in")))
sketch5.addConstraint(Sketcher.Constraint("DistanceX", 20, 2, 16, 2, Q("2 in")))
sketch5.addConstraint(Sketcher.Constraint("Distance", 8, Q("0.5 in")))
sketch5.addConstraint(Sketcher.Constraint("DistanceY", 0, 1, 0, 2, Q("0.25 in")))
sketch5.addConstraint(Sketcher.Constraint("Distance", 9, Q("0.25 in")))
sketch5.addConstraint(Sketcher.Constraint("DistanceY", -1, 1, 10, 2, Q("24.475719 mm")))
sketch5.addConstraint(Sketcher.Constraint("DistanceX", 16, 2, -1, 1, Q("32.600739 mm")))
sketch5.addConstraint(Sketcher.Constraint("DistanceY", -1, 1, 20, 2, Q("10.507348 mm")))
sketch5.addConstraint(Sketcher.Constraint("DistanceY", 8, 2, 6, 2, Q("50.321288 mm")))
sketch5.addConstraint(Sketcher.Constraint("DistanceY", 12, 2, 8, 2, Q("87.988181 mm")))
sketch5.addConstraint(Sketcher.Constraint("DistanceX", 16, 2, 14, 2, Q("53.233771 mm")))
sketch5.addConstraint(Sketcher.Constraint("DistanceY", 18, 2, 15, 2, Q("10.79337 mm")))
pocket4 = body.newObject("PartDesign::Pocket", "Pocket003")
pocket4.Profile = sketch5
pocket4.Type = "ThroughAll"
pocket4.Reversed = True

# Sketch on XZ plane
sketch6 = body.newObject("Sketcher::SketchObject", "Sketch005")
sketch6.AttachmentSupport = (doc.getObject("XZ_Plane"), [""])
sketch6.MapMode = "FlatFace"
sketch6.AttachmentOffset = App.Placement(Vector(0, 0, -0.25 * 25.4), App.Rotation())
sketch6.addGeometry(Part.LineSegment(Vector(-73.125151, 50.833442, 0), Vector(-83.259044, 34.761597, 0)), False)
sketch6.addGeometry(Part.LineSegment(Vector(-83.259044, 34.761597, 0), Vector(-90.026136, 39.028499, 0)), False)
sketch6.addGeometry(Part.LineSegment(Vector(-90.026136, 39.028499, 0), Vector(-79.892244, 55.100344, 0)), False)
sketch6.addGeometry(Part.LineSegment(Vector(-79.892244, 55.100344, 0), Vector(-73.125151, 50.833442, 0)), False)
sketch6.addConstraint(Sketcher.Constraint("Coincident", 0, 2, 1, 1))
sketch6.addConstraint(Sketcher.Constraint("Coincident", 1, 2, 2, 1))
sketch6.addConstraint(Sketcher.Constraint("Coincident", 2, 2, 3, 1))
sketch6.addConstraint(Sketcher.Constraint("Coincident", 3, 2, 0, 1))
sketch6.addConstraint(Sketcher.Constraint("Perpendicular", 0, 1))
sketch6.addConstraint(Sketcher.Constraint("Perpendicular", 1, 2))
sketch6.addConstraint(Sketcher.Constraint("Perpendicular", 2, 3))
sketch6.addConstraint(Sketcher.Constraint("Distance", 0, Q("19 mm")))
sketch6.addConstraint(Sketcher.Constraint("Distance", 1, Q("8 mm")))
sketch6.addConstraint(Sketcher.Constraint("DistanceY", -1, 1, 1, 2, Q("39.028499 mm")))
sketch6.addConstraint(Sketcher.Constraint("DistanceX", 0, 2, 2, 2, Q("3.3668 mm")))
sketch6.addConstraint(Sketcher.Constraint("DistanceX", 3, 2, -1, 1, Q("73.125151 mm")))
pocket5 = body.newObject("PartDesign::Pocket", "Pocket004")
pocket5.Profile = sketch6
pocket5.Type = "ThroughAll"
pocket5.Reversed = True

doc.recompute()
